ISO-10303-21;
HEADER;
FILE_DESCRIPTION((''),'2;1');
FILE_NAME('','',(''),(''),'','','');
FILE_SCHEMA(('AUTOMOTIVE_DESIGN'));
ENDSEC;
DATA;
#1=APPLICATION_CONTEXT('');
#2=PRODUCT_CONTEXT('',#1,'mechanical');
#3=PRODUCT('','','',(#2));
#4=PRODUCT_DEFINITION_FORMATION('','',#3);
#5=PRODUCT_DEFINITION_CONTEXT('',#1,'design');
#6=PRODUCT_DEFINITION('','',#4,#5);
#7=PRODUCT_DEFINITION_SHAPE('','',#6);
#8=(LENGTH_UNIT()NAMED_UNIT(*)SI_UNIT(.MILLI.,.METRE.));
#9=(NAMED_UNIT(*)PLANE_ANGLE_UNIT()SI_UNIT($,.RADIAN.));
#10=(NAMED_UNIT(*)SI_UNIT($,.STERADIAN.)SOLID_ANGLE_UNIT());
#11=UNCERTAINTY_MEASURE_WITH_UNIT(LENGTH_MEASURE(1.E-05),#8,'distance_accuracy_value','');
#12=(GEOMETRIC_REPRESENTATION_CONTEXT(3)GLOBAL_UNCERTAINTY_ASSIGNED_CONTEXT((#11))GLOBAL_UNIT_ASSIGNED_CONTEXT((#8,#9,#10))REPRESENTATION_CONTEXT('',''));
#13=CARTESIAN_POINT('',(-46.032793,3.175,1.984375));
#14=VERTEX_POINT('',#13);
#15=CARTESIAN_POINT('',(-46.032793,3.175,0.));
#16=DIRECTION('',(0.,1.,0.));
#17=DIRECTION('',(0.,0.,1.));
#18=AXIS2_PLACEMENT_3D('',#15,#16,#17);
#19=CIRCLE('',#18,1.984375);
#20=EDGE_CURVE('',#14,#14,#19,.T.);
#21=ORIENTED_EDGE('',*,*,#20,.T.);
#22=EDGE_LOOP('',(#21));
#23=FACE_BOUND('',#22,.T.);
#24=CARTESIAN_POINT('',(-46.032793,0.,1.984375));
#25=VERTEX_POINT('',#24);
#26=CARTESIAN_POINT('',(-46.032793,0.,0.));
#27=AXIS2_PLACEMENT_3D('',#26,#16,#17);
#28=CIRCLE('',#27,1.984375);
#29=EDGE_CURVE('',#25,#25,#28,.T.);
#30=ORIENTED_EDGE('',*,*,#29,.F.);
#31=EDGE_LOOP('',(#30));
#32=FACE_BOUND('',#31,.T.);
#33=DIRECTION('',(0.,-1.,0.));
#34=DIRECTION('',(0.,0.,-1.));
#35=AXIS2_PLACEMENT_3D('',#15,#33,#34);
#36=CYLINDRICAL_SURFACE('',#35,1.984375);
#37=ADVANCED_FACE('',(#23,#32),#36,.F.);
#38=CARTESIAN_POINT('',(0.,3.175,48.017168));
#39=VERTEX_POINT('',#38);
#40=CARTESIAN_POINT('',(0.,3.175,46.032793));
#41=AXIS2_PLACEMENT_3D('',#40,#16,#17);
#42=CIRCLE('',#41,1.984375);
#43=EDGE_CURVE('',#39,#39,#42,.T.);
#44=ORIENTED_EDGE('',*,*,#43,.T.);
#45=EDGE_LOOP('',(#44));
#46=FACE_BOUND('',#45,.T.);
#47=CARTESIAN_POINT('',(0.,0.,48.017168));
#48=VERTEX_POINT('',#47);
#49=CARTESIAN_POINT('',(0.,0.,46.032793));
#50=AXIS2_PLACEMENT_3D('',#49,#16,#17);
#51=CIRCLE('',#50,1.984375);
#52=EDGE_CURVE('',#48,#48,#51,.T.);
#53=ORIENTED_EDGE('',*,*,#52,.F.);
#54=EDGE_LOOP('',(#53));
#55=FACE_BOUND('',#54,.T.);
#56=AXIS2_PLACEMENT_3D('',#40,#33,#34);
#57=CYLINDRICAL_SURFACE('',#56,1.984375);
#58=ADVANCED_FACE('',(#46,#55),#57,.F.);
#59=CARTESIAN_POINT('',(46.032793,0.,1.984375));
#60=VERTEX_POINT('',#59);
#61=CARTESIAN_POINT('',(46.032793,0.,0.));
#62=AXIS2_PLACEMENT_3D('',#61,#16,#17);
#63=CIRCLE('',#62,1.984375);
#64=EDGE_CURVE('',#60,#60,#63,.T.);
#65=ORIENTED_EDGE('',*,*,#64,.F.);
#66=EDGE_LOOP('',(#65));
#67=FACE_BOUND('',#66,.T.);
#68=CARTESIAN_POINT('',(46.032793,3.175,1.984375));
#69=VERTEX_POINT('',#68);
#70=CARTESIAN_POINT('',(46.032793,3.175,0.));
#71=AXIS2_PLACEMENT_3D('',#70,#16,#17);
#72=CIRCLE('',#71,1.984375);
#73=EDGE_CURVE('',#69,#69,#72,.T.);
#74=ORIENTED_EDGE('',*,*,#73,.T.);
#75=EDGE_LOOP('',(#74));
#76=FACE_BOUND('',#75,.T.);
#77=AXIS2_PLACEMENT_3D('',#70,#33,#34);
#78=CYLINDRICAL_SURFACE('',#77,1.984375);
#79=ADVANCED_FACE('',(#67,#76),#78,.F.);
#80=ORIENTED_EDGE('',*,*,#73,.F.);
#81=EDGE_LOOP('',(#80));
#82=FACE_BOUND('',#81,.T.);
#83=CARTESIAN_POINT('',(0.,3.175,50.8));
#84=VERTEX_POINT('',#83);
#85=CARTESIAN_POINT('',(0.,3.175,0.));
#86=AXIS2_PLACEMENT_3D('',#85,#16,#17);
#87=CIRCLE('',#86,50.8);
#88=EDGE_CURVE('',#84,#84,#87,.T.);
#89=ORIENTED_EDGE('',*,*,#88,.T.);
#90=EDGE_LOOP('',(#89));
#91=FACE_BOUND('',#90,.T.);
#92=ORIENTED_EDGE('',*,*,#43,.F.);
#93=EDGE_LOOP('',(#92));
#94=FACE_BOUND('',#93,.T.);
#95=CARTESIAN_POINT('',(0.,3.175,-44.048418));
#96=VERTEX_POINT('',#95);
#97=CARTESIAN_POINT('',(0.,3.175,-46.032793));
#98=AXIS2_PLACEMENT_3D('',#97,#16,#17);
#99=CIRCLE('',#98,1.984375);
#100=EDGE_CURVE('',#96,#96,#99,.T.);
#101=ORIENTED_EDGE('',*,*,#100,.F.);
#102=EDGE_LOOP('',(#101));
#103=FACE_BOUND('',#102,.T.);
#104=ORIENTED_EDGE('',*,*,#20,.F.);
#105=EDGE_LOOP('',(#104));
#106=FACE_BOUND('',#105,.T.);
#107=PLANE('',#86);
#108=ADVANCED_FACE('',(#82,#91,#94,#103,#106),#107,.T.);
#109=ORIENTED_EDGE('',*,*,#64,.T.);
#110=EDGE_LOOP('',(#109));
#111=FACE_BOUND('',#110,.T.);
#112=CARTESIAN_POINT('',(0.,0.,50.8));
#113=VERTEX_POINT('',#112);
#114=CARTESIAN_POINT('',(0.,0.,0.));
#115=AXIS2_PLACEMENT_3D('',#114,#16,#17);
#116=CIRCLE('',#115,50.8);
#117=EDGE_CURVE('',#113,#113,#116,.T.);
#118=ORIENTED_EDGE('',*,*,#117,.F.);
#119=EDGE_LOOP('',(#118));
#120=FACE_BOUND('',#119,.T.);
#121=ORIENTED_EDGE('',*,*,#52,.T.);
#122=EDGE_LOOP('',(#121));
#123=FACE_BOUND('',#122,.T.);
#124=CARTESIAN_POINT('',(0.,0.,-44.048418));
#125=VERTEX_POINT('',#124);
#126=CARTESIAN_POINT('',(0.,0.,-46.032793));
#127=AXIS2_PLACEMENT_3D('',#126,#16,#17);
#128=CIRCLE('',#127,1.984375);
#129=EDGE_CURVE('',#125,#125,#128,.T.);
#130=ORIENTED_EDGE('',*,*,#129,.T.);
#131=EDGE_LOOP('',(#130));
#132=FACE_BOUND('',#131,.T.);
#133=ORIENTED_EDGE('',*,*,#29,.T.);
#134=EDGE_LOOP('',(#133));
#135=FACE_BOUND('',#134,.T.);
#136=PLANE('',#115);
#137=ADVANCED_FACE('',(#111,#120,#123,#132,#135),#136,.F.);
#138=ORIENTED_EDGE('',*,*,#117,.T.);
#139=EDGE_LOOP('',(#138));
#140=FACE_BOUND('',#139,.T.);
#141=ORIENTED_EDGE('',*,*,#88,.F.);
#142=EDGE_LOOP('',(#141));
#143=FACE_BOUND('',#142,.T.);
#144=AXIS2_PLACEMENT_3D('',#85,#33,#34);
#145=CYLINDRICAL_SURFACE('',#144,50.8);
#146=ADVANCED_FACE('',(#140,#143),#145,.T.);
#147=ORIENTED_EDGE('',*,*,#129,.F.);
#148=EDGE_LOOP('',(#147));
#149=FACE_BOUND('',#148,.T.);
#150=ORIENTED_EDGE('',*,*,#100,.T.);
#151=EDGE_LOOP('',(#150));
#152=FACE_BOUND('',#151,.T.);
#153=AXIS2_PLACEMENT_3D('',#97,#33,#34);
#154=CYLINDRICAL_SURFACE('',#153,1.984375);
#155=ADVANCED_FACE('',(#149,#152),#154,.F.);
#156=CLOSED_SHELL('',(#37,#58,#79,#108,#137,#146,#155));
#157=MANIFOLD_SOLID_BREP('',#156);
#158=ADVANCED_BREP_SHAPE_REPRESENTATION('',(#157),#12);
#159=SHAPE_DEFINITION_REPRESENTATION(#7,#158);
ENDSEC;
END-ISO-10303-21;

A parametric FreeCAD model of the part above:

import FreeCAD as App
import Part
import Sketcher

V = App.Vector
Q = App.Units.Quantity

doc = App.newDocument("Part")
body = doc.addObject("PartDesign::Body", "Body")

# Sketch on XZ plane
sketch1 = body.newObject("Sketcher::SketchObject", "Sketch")
sketch1.AttachmentSupport = (doc.getObject("XZ_Plane"), [""])
sketch1.MapMode = "FlatFace"
sketch1.addGeometry(Part.Circle(V(0, 0, 0), V(0, 0, 1), 50.8), False)
sketch1.addGeometry(Part.Circle(V(0, -46, 0), V(0, 0, 1), 2), False)
sketch1.addGeometry(Part.Circle(V(-46, 0, 0), V(0, 0, 1), 2), False)
sketch1.addGeometry(Part.Circle(V(46, 0, 0), V(0, 0, 1), 2), False)
sketch1.addGeometry(Part.Circle(V(0, 46, 0), V(0, 0, 1), 2), False)
sketch1.addConstraint(Sketcher.Constraint("Coincident", 0, 3, -1, 1))
sketch1.addConstraint(Sketcher.Constraint("Equal", 1, 2))
sketch1.addConstraint(Sketcher.Constraint("Equal", 2, 3))
sketch1.addConstraint(Sketcher.Constraint("Equal", 3, 4))
sketch1.addConstraint(Sketcher.Constraint("Symmetric", 2, 3, 3, 3, -1, 1))
sketch1.addConstraint(Sketcher.Constraint("Symmetric", 1, 3, 4, 3, -1, 1))
sketch1.addConstraint(Sketcher.Constraint("PointOnObject", 1, 3, -2))
sketch1.addConstraint(Sketcher.Constraint("PointOnObject", 2, 3, -1))
sketch1.addConstraint(Sketcher.Constraint("Diameter", 0, Q("4 in")))
sketch1.addConstraint(Sketcher.Constraint("Diameter", 1, Q("0.15625 in")))
sketch1.addConstraint(Sketcher.Constraint("DistanceY", 1, 3, -1, 1, Q("46.032793 mm")))
sketch1.addConstraint(Sketcher.Constraint("DistanceX", 2, 3, -1, 1, Q("46.032793 mm")))
pad1 = body.newObject("PartDesign::Pad", "Pad")
pad1.Profile = sketch1
pad1.Length = Q("0.125 in")
pad1.Reversed = True

doc.recompute()
